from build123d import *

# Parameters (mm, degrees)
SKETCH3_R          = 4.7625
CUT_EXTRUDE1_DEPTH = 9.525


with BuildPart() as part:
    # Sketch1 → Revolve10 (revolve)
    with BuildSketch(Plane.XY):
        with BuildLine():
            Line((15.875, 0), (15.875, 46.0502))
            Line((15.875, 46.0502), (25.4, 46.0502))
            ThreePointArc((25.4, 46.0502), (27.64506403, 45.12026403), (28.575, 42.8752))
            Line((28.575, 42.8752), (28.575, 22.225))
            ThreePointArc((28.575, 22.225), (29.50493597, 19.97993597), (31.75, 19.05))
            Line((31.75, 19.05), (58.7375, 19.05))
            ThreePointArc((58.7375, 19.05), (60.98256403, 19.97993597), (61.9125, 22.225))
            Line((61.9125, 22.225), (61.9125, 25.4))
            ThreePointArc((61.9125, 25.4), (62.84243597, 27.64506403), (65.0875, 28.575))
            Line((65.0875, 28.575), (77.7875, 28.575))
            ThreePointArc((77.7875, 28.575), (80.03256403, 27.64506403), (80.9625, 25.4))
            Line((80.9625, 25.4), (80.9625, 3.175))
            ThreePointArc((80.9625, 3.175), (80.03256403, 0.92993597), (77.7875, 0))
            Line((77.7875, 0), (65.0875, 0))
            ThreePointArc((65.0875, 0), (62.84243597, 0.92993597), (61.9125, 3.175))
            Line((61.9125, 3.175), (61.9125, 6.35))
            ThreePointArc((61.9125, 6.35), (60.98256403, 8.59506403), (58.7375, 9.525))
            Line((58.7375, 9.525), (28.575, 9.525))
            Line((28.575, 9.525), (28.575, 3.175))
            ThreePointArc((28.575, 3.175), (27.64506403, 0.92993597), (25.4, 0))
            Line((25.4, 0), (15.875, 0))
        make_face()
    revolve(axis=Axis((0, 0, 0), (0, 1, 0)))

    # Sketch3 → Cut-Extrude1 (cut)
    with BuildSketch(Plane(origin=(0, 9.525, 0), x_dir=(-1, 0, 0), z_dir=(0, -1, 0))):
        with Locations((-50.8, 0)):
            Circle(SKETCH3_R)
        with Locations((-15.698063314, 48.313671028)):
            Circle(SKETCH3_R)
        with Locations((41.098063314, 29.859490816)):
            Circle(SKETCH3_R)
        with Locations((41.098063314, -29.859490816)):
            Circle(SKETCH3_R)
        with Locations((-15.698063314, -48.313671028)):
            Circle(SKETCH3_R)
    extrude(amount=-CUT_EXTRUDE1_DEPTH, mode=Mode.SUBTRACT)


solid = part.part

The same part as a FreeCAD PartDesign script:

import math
import FreeCAD as App
import Part
import Sketcher
Q = App.Units.Quantity

doc = App.newDocument("Part")
body = doc.addObject("PartDesign::Body", "Body")

sketch1 = doc.addObject("Sketcher::SketchObject", "Sketch")
body.addObject(sketch1)
sketch1.AttachmentSupport = (doc.XY_Plane, [""])
sketch1.MapMode = "FlatFace"
sketch1.addGeometry([
    Part.LineSegment(App.Vector(15.9, 46.1, 0), App.Vector(15.9, 0, 0)),
    Part.LineSegment(App.Vector(15.9, 0, 0), App.Vector(25.4, 0, 0)),
    Part.ArcOfCircle(Part.Circle(App.Vector(25.4, 3.2, 0), App.Vector(0, 0, 1), 3.2), math.radians(-90), math.radians(0)),
    Part.LineSegment(App.Vector(28.6, 3.2, 0), App.Vector(28.6, 9.5, 0)),
    Part.LineSegment(App.Vector(28.6, 9.5, 0), App.Vector(58.7, 9.5, 0)),
    Part.ArcOfCircle(Part.Circle(App.Vector(58.7, 6.3, 0), App.Vector(0, 0, 1), 3.2), math.radians(0), math.radians(90)),
    Part.LineSegment(App.Vector(61.9, 6.3, 0), App.Vector(61.9, 3.2, 0)),
    Part.ArcOfCircle(Part.Circle(App.Vector(65.1, 3.2, 0), App.Vector(0, 0, 1), 3.2), math.radians(-180), math.radians(-90)),
    Part.LineSegment(App.Vector(65.1, 0, 0), App.Vector(77.8, 0, 0)),
    Part.ArcOfCircle(Part.Circle(App.Vector(77.8, 3.2, 0), App.Vector(0, 0, 1), 3.2), math.radians(-90), math.radians(0)),
    Part.LineSegment(App.Vector(81, 3.2, 0), App.Vector(81, 25.4, 0)),
    Part.ArcOfCircle(Part.Circle(App.Vector(77.8, 25.4, 0), App.Vector(0, 0, 1), 3.2), math.radians(0), math.radians(90)),
    Part.LineSegment(App.Vector(77.8, 28.6, 0), App.Vector(65.1, 28.6, 0)),
    Part.ArcOfCircle(Part.Circle(App.Vector(65.1, 25.4, 0), App.Vector(0, 0, 1), 3.2), math.radians(90), math.radians(180)),
    Part.LineSegment(App.Vector(61.9, 25.4, 0), App.Vector(61.9, 22.2, 0)),
    Part.ArcOfCircle(Part.Circle(App.Vector(58.7, 22.2, 0), App.Vector(0, 0, 1), 3.2), math.radians(-90), math.radians(0)),
    Part.LineSegment(App.Vector(58.7, 19.1, 0), App.Vector(31.8, 19.1, 0)),
    Part.ArcOfCircle(Part.Circle(App.Vector(31.8, 22.2, 0), App.Vector(0, 0, 1), 3.2), math.radians(-180), math.radians(-90)),
    Part.LineSegment(App.Vector(28.6, 22.2, 0), App.Vector(28.6, 42.9, 0)),
    Part.ArcOfCircle(Part.Circle(App.Vector(25.4, 42.9, 0), App.Vector(0, 0, 1), 3.2), math.radians(0), math.radians(90)),
    Part.LineSegment(App.Vector(25.4, 46.1, 0), App.Vector(15.9, 46.1, 0)),
], False)
sketch1.addConstraint([
    Sketcher.Constraint("Coincident", 0, 2, 1, 1),
    Sketcher.Constraint("Tangent", 1, 2, 2, 1),
    Sketcher.Constraint("Tangent", 2, 2, 3, 1),
    Sketcher.Constraint("Coincident", 3, 2, 4, 1),
    Sketcher.Constraint("Tangent", 4, 2, 5, 2),
    Sketcher.Constraint("Tangent", 5, 1, 6, 1),
    Sketcher.Constraint("Tangent", 6, 2, 7, 1),
    Sketcher.Constraint("Tangent", 7, 2, 8, 1),
    Sketcher.Constraint("Tangent", 8, 2, 9, 1),
    Sketcher.Constraint("Tangent", 9, 2, 10, 1),
    Sketcher.Constraint("Tangent", 10, 2, 11, 1),
    Sketcher.Constraint("Tangent", 11, 2, 12, 1),
    Sketcher.Constraint("Tangent", 12, 2, 13, 1),
    Sketcher.Constraint("Tangent", 13, 2, 14, 1),
    Sketcher.Constraint("Tangent", 14, 2, 15, 2),
    Sketcher.Constraint("Tangent", 15, 1, 16, 1),
    Sketcher.Constraint("Tangent", 16, 2, 17, 2),
    Sketcher.Constraint("Tangent", 17, 1, 18, 1),
    Sketcher.Constraint("Tangent", 18, 2, 19, 1),
    Sketcher.Constraint("Tangent", 19, 2, 20, 1),
    Sketcher.Constraint("Coincident", 20, 2, 0, 1),
    Sketcher.Constraint("Vertical", 0),
    Sketcher.Constraint("Horizontal", 1),
    Sketcher.Constraint("Vertical", 3),
    Sketcher.Constraint("Horizontal", 4),
    Sketcher.Constraint("Vertical", 6),
    Sketcher.Constraint("Horizontal", 8),
    Sketcher.Constraint("Vertical", 10),
    Sketcher.Constraint("Horizontal", 12),
    Sketcher.Constraint("Vertical", 14),
    Sketcher.Constraint("Horizontal", 16),
    Sketcher.Constraint("Vertical", 18),
    Sketcher.Constraint("Horizontal", 20),
    Sketcher.Constraint("Equal", 2, 5),
    Sketcher.Constraint("Equal", 5, 7),
    Sketcher.Constraint("Equal", 7, 9),
    Sketcher.Constraint("Equal", 9, 11),
    Sketcher.Constraint("Equal", 11, 13),
    Sketcher.Constraint("Equal", 13, 15),
    Sketcher.Constraint("Equal", 15, 17),
    Sketcher.Constraint("Equal", 17, 19),
    Sketcher.Constraint("PointOnObject", 0, 2, -1),
    Sketcher.Constraint("PointOnObject", 7, 2, -1),
    Sketcher.Constraint("Vertical", 7, 3, 13, 3),
    Sketcher.Constraint("Vertical", 2, 3, 19, 3),
    Sketcher.Constraint("Equal", 6, 14),
    Sketcher.Constraint("DistanceX", 8, 1, 8, 2, Q("0.5 in")),
    Sketcher.Constraint("DistanceX", -1, 1, 2, 3, Q("1 in")),
    Sketcher.Constraint("DistanceY", -1, 1, 11, 3, Q("1 in")),
    Sketcher.Constraint("Radius", 2, Q("0.125 in")),
    Sketcher.Constraint("DistanceY", 3, 1, 3, 2, Q("0.25 in")),
    Sketcher.Constraint("DistanceX", 0, 2, 2, 2, Q("0.5 in")),
    Sketcher.Constraint("DistanceX", 4, 1, 4, 2, Q("1.1875 in")),
    Sketcher.Constraint("DistanceY", 0, 2, 0, 1, Q("1.813 in")),
])
revolution = doc.addObject("PartDesign::Revolution", "Revolution")
body.addObject(revolution)
revolution.Profile = sketch1
revolution.ReferenceAxis = (sketch1, ["V_Axis"])
revolution.Angle = 360

sketch2 = doc.addObject("Sketcher::SketchObject", "Sketch001")
body.addObject(sketch2)
sketch2.AttachmentSupport = (doc.XZ_Plane, [""])
sketch2.MapMode = "FlatFace"
sketch2.AttachmentOffset = App.Placement(App.Vector(0, 0, -0.375 * 25.4), App.Rotation())
sketch2.addGeometry([
    Part.Circle(App.Vector(50.8, 0, 0), App.Vector(0, 0, 1), 4.8),
    Part.Circle(App.Vector(15.7, -48.3, 0), App.Vector(0, 0, 1), 4.8),
    Part.Circle(App.Vector(-41.1, -29.9, 0), App.Vector(0, 0, 1), 4.8),
    Part.Circle(App.Vector(-41.1, 29.9, 0), App.Vector(0, 0, 1), 4.8),
    Part.Circle(App.Vector(15.7, 48.3, 0), App.Vector(0, 0, 1), 4.8),
], False)
sketch2.addConstraint([
    Sketcher.Constraint("Equal", 0, 1),
    Sketcher.Constraint("Equal", 1, 2),
    Sketcher.Constraint("Equal", 2, 3),
    Sketcher.Constraint("Equal", 3, 4),
    Sketcher.Constraint("Symmetric", 2, 3, 3, 3, -1),
    Sketcher.Constraint("Symmetric", 1, 3, 4, 3, -1),
    Sketcher.Constraint("PointOnObject", 0, 3, -1),
    Sketcher.Constraint("Diameter", 0, Q("0.375 in")),
    Sketcher.Constraint("DistanceX", -1, 1, 0, 3, Q("2 in")),
    Sketcher.Constraint("DistanceY", 1, 3, -1, 1, 48.313671),
    Sketcher.Constraint("DistanceY", 2, 3, -1, 1, 29.859491),
    Sketcher.Constraint("DistanceX", -1, 1, 1, 3, 15.698063),
    Sketcher.Constraint("DistanceX", 2, 3, -1, 1, 41.098063),
])
pocket1 = doc.addObject("PartDesign::Pocket", "Pocket")
body.addObject(pocket1)
pocket1.Profile = sketch2
pocket1.Length = Q("0.375 in")

doc.recompute()
